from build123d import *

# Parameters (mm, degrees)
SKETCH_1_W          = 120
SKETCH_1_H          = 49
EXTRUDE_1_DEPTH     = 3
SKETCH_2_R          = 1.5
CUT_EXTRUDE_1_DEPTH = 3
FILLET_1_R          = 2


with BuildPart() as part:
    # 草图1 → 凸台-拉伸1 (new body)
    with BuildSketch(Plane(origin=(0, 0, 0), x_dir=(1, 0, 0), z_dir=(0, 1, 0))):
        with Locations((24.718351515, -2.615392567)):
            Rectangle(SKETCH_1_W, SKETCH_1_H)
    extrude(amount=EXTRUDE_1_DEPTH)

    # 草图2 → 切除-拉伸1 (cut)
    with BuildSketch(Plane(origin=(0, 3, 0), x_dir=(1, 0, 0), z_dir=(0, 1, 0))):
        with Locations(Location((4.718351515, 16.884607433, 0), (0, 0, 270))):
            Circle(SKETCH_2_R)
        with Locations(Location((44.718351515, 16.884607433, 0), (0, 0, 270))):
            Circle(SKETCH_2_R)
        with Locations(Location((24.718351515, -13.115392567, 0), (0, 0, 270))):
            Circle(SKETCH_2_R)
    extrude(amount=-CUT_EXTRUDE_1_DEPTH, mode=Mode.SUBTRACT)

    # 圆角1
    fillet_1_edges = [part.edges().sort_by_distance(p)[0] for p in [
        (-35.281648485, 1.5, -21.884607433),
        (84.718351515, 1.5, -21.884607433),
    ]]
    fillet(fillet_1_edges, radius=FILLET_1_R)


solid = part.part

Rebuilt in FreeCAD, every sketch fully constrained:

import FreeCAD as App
import Part
import Sketcher
from FreeCAD import Vector
Q = App.Units.Quantity


def edges_at(feature, points):
    """Names of the edges that pass closest to the given points."""
    edges = feature.Shape.Edges
    near = lambda p: min(range(len(edges)), key=lambda i: edges[i].distToShape(Part.Vertex(*p))[0])
    return sorted({f"Edge{near(p) + 1}" for p in points})

doc = App.newDocument("Part")
body = doc.addObject("PartDesign::Body", "Body")

sketch1 = doc.addObject("Sketcher::SketchObject", "Sketch")
body.addObject(sketch1)
sketch1.AttachmentSupport = (doc.XZ_Plane, [""])
sketch1.MapMode = "FlatFace"
sketch1.addGeometry([
    Part.LineSegment(Vector(-35, -22, 0), Vector(-35, 27, 0)),
    Part.LineSegment(Vector(-35, 27, 0), Vector(85, 27, 0)),
    Part.LineSegment(Vector(85, 27, 0), Vector(85, -22, 0)),
    Part.LineSegment(Vector(85, -22, 0), Vector(-35, -22, 0)),
], False)
sketch1.addConstraint([
    Sketcher.Constraint("Coincident", 0, 2, 1, 1),
    Sketcher.Constraint("Coincident", 1, 2, 2, 1),
    Sketcher.Constraint("Coincident", 2, 2, 3, 1),
    Sketcher.Constraint("Coincident", 3, 2, 0, 1),
    Sketcher.Constraint("Vertical", 0),
    Sketcher.Constraint("Horizontal", 1),
    Sketcher.Constraint("Vertical", 2),
    Sketcher.Constraint("Horizontal", 3),
    Sketcher.Constraint("DistanceX", 1, 1, 1, 2, Q("120 mm")),
    Sketcher.Constraint("DistanceY", 0, 1, 0, 2, Q("49 mm")),
    Sketcher.Constraint("DistanceX", 0, 2, -1, 1, Q("35.281648 mm")),
    Sketcher.Constraint("DistanceY", -1, 1, 0, 2, Q("27.115393 mm")),
])
pad1 = doc.addObject("PartDesign::Pad", "Pad")
body.addObject(pad1)
pad1.Profile = sketch1
pad1.Length = 3
pad1.Reversed = True

sketch2 = doc.addObject("Sketcher::SketchObject", "Sketch001")
body.addObject(sketch2)
sketch2.AttachmentSupport = (doc.XZ_Plane, [""])
sketch2.MapMode = "FlatFace"
sketch2.AttachmentOffset = App.Placement(Vector(0, 0, -3), App.Rotation())
sketch2.addGeometry([
    Part.Circle(Vector(4.7, -16.9, 0), Vector(0, 0, 1), 1.5),
    Part.Circle(Vector(44.7, -16.9, 0), Vector(0, 0, 1), 1.5),
    Part.Circle(Vector(24.7, 13.1, 0), Vector(0, 0, 1), 1.5),
], False)
sketch2.addConstraint([
    Sketcher.Constraint("Equal", 0, 1),
    Sketcher.Constraint("Equal", 1, 2),
    Sketcher.Constraint("Horizontal", 0, 3, 1, 3),
    Sketcher.Constraint("Diameter", 0, Q("3 mm")),
    Sketcher.Constraint("DistanceX", 0, 3, 1, 3, Q("40 mm")),
    Sketcher.Constraint("DistanceX", 0, 3, 2, 3, Q("20 mm")),
    Sketcher.Constraint("DistanceY", 0, 3, 2, 3, Q("30 mm")),
    Sketcher.Constraint("DistanceX", -1, 1, 0, 3, Q("4.718352 mm")),
    Sketcher.Constraint("DistanceY", 0, 3, -1, 1, Q("16.884607 mm")),
])
pocket1 = doc.addObject("PartDesign::Pocket", "Pocket")
body.addObject(pocket1)
pocket1.Profile = sketch2
pocket1.Length = 3
pocket1.Reversed = True
doc.recompute()

fillet = doc.addObject("PartDesign::Fillet", "Fillet")
body.addObject(fillet)
fillet.Base = (pocket1, edges_at(pocket1, [(-35.282, 1.5, -21.885), (84.718, 1.5, -21.885)]))
fillet.Radius = 2

doc.recompute()
